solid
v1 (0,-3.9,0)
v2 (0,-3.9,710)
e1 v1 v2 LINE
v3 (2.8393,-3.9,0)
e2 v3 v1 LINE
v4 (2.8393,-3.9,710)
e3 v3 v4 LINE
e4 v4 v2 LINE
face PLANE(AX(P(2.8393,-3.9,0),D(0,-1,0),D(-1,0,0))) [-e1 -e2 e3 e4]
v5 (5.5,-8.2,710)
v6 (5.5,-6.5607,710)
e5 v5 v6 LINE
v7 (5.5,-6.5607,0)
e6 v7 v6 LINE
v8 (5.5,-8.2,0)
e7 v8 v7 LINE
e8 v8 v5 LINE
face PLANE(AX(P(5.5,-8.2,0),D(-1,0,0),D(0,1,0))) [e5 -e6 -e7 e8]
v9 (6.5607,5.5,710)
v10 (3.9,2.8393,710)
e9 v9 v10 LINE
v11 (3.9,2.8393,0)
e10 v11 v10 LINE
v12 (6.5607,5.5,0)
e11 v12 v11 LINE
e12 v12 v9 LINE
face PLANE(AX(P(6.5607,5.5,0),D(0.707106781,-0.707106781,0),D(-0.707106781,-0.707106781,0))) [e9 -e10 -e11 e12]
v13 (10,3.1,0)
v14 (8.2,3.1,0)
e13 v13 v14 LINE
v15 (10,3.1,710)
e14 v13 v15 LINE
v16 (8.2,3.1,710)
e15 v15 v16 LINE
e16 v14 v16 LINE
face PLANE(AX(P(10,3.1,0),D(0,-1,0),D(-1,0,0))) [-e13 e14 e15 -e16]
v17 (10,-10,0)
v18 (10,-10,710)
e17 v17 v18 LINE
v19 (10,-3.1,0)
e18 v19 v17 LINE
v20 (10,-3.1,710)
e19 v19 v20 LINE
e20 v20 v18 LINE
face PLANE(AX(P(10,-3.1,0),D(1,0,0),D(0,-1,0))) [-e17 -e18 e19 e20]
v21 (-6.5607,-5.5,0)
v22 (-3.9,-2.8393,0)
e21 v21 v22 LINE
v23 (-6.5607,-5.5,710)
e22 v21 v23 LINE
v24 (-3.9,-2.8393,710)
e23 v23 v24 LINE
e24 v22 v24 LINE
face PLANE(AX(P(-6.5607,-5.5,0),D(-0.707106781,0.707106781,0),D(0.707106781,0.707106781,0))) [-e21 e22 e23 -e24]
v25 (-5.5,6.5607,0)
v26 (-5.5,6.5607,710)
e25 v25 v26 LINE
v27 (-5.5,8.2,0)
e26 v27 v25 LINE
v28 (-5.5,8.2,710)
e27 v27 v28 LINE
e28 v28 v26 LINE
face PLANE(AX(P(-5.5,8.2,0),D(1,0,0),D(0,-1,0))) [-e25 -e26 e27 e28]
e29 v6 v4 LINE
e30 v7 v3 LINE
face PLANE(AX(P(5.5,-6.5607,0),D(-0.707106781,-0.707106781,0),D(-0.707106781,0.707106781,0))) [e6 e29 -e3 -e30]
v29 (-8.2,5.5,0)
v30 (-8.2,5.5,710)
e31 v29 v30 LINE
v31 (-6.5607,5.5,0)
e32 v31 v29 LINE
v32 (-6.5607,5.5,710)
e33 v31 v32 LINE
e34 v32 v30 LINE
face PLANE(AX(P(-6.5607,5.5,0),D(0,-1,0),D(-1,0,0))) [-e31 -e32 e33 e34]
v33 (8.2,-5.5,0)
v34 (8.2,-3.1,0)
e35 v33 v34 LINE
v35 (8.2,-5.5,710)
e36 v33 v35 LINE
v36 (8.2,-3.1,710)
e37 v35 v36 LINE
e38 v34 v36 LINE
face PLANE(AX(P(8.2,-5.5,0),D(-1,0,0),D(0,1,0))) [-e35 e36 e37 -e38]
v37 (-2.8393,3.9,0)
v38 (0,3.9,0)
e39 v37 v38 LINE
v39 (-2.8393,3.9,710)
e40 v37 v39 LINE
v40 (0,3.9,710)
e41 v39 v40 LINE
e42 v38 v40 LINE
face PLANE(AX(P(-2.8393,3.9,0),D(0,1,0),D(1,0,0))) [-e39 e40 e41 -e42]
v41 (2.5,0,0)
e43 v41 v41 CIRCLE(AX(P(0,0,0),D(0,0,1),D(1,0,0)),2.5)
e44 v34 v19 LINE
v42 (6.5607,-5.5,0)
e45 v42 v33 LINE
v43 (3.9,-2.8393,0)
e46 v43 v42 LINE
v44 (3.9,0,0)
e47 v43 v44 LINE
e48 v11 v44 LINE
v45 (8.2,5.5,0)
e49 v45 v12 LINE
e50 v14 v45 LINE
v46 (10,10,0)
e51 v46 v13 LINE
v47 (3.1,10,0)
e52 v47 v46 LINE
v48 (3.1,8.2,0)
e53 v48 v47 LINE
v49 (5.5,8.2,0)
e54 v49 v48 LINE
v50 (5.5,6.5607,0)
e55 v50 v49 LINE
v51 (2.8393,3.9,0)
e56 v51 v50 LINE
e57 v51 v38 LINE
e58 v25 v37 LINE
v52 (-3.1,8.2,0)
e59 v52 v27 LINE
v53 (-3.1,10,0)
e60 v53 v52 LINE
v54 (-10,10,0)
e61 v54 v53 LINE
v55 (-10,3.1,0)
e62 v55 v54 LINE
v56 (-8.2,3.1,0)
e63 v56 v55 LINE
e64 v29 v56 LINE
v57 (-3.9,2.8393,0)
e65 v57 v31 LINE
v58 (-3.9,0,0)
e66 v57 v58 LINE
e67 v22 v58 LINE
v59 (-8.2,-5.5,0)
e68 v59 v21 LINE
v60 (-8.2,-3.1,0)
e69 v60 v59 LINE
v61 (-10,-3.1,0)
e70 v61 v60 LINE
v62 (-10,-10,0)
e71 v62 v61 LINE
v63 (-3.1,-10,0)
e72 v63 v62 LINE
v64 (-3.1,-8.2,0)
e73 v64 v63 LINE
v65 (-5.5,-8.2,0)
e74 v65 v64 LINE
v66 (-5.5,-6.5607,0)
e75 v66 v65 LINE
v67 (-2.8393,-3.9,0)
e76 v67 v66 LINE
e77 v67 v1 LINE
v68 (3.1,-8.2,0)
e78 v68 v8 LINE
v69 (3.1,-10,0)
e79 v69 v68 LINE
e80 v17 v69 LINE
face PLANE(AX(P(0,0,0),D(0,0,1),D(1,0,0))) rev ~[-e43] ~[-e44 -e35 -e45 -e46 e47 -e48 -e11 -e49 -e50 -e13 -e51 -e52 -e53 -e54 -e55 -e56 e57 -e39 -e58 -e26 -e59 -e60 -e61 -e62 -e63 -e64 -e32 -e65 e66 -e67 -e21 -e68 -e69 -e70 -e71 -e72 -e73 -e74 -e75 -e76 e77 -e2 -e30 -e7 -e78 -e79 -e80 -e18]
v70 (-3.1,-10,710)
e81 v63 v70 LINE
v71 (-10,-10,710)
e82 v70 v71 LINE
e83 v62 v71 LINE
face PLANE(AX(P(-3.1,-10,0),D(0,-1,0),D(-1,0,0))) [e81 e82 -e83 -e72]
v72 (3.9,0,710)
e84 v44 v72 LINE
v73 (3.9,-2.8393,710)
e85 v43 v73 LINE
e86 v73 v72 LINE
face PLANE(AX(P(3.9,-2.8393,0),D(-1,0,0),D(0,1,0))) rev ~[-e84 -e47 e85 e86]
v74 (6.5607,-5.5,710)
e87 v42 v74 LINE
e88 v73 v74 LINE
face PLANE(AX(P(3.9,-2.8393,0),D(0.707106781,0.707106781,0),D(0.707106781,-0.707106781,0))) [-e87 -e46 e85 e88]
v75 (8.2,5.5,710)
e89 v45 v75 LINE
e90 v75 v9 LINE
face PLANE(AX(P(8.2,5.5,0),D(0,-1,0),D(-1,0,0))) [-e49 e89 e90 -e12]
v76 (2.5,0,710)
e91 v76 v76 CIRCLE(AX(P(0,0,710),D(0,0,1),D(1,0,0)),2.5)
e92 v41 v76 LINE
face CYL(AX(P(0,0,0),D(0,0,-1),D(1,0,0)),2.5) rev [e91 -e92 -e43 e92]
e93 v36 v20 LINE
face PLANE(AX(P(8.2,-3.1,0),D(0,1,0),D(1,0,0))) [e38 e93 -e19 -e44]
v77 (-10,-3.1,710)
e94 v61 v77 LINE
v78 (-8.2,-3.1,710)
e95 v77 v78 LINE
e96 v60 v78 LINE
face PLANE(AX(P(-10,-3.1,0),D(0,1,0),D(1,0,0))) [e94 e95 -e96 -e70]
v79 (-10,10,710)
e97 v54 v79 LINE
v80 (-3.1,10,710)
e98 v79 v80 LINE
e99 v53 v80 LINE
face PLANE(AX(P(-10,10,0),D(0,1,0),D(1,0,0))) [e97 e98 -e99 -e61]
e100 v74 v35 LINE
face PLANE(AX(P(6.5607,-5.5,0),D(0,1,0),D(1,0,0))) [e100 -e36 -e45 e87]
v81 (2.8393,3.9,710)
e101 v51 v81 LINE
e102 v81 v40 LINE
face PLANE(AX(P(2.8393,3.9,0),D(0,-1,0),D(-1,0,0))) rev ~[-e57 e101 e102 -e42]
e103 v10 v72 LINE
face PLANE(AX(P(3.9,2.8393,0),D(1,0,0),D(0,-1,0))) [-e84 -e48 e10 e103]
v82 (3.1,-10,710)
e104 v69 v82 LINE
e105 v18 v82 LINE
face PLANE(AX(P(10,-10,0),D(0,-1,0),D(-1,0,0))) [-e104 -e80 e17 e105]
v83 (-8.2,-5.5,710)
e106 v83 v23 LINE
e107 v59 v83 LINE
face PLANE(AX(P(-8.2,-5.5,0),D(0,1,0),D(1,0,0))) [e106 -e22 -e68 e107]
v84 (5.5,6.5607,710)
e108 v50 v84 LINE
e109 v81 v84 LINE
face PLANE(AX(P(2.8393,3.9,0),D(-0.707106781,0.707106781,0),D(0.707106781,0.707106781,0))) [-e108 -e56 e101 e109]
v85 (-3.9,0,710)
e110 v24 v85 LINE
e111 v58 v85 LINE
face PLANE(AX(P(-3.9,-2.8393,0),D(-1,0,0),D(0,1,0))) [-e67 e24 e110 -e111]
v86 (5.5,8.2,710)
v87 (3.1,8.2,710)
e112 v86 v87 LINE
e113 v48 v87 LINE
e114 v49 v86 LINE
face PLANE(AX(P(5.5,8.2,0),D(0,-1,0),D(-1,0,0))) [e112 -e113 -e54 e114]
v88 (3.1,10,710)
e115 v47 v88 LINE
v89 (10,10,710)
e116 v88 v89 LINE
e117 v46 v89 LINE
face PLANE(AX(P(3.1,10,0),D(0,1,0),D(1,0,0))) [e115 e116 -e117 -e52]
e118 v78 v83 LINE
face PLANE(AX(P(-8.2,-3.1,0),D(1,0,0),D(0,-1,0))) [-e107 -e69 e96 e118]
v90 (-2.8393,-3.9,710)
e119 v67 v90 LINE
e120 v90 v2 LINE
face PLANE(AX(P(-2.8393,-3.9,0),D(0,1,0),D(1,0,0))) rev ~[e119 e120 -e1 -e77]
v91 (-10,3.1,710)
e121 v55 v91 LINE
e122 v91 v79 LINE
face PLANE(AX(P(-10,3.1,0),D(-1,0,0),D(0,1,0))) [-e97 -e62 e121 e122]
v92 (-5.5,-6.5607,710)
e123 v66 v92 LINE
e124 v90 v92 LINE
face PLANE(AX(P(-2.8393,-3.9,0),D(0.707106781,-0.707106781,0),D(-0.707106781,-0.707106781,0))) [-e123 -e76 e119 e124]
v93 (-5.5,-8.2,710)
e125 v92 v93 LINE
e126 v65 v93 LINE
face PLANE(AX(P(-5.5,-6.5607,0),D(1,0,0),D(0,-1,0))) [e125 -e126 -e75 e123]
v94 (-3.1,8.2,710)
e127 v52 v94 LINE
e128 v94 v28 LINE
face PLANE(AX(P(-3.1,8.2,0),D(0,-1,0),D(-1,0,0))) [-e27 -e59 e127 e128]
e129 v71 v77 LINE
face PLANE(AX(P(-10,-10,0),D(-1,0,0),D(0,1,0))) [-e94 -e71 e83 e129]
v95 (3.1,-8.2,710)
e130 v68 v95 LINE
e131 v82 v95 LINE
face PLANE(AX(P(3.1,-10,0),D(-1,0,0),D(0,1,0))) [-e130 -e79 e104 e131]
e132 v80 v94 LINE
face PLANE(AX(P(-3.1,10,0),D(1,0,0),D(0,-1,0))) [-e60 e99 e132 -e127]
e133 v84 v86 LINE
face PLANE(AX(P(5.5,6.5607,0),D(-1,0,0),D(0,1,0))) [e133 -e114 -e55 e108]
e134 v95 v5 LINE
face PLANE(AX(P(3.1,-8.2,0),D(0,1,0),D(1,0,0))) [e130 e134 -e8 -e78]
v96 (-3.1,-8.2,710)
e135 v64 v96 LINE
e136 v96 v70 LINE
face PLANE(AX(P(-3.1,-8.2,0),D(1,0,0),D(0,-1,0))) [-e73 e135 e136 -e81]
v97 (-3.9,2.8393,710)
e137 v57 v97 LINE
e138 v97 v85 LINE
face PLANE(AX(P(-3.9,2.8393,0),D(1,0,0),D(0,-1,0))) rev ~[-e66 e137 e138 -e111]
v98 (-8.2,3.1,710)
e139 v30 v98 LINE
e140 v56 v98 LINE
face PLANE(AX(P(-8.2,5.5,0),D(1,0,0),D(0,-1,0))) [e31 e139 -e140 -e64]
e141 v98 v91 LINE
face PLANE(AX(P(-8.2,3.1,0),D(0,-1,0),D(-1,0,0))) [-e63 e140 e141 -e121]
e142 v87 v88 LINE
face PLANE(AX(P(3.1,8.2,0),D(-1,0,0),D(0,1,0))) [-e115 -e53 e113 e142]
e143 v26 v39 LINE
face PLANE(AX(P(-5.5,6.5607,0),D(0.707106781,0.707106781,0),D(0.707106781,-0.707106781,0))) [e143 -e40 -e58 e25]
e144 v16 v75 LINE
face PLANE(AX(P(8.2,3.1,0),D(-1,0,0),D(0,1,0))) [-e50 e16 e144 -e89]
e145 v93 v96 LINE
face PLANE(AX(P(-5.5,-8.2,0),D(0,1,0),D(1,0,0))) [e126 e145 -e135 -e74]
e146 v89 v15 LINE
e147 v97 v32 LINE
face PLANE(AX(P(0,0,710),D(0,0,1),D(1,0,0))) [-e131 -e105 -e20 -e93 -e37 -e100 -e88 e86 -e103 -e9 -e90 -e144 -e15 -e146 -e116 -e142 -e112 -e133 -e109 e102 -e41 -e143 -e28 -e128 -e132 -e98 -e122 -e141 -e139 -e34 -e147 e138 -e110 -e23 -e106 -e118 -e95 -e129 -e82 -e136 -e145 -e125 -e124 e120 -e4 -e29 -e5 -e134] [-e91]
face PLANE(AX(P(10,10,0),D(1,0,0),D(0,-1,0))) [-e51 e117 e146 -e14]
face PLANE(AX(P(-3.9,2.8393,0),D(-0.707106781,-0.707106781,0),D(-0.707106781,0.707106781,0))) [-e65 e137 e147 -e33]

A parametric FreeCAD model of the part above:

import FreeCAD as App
import Part
import Sketcher

doc = App.newDocument("Part")
body = doc.addObject("PartDesign::Body", "Body")

# Sketch on XY plane
sketch1 = body.newObject("Sketcher::SketchObject", "Sketch")
sketch1.AttachmentSupport = (doc.getObject("XY_Plane"), [""])
sketch1.MapMode = "FlatFace"
sketch1.addGeometry([
    Part.LineSegment(App.Vector(-5.5, -6.6, 0), App.Vector(-2.8, -3.9, 0)),  # 0
    Part.LineSegment(App.Vector(-2.8, -3.9, 0), App.Vector(2.8, -3.9, 0)),  # 1
    Part.LineSegment(App.Vector(2.8, -3.9, 0), App.Vector(5.5, -6.6, 0)),  # 2
    Part.LineSegment(App.Vector(5.5, -6.6, 0), App.Vector(5.5, -8.2, 0)),  # 3
    Part.LineSegment(App.Vector(5.5, -8.2, 0), App.Vector(3.1, -8.2, 0)),  # 4
    Part.LineSegment(App.Vector(3.1, -8.2, 0), App.Vector(3.1, -10, 0)),  # 5
    Part.LineSegment(App.Vector(3.1, -10, 0), App.Vector(10, -10, 0)),  # 6
    Part.LineSegment(App.Vector(10, -10, 0), App.Vector(10, -3.1, 0)),  # 7
    Part.LineSegment(App.Vector(10, -3.1, 0), App.Vector(8.2, -3.1, 0)),  # 8
    Part.LineSegment(App.Vector(8.2, -3.1, 0), App.Vector(8.2, -5.5, 0)),  # 9
    Part.LineSegment(App.Vector(8.2, -5.5, 0), App.Vector(6.6, -5.5, 0)),  # 10
    Part.LineSegment(App.Vector(6.6, -5.5, 0), App.Vector(3.9, -2.8, 0)),  # 11
    Part.LineSegment(App.Vector(3.9, -2.8, 0), App.Vector(3.9, 2.8, 0)),  # 12
    Part.LineSegment(App.Vector(3.9, 2.8, 0), App.Vector(6.6, 5.5, 0)),  # 13
    Part.LineSegment(App.Vector(6.6, 5.5, 0), App.Vector(8.2, 5.5, 0)),  # 14
    Part.LineSegment(App.Vector(8.2, 5.5, 0), App.Vector(8.2, 3.1, 0)),  # 15
    Part.LineSegment(App.Vector(8.2, 3.1, 0), App.Vector(10, 3.1, 0)),  # 16
    Part.LineSegment(App.Vector(10, 3.1, 0), App.Vector(10, 10, 0)),  # 17
    Part.LineSegment(App.Vector(10, 10, 0), App.Vector(3.1, 10, 0)),  # 18
    Part.LineSegment(App.Vector(3.1, 10, 0), App.Vector(3.1, 8.2, 0)),  # 19
    Part.LineSegment(App.Vector(3.1, 8.2, 0), App.Vector(5.5, 8.2, 0)),  # 20
    Part.LineSegment(App.Vector(5.5, 8.2, 0), App.Vector(5.5, 6.6, 0)),  # 21
    Part.LineSegment(App.Vector(5.5, 6.6, 0), App.Vector(2.8, 3.9, 0)),  # 22
    Part.LineSegment(App.Vector(2.8, 3.9, 0), App.Vector(-2.8, 3.9, 0)),  # 23
    Part.LineSegment(App.Vector(-2.8, 3.9, 0), App.Vector(-5.5, 6.6, 0)),  # 24
    Part.LineSegment(App.Vector(-5.5, 6.6, 0), App.Vector(-5.5, 8.2, 0)),  # 25
    Part.LineSegment(App.Vector(-5.5, 8.2, 0), App.Vector(-3.1, 8.2, 0)),  # 26
    Part.LineSegment(App.Vector(-3.1, 8.2, 0), App.Vector(-3.1, 10, 0)),  # 27
    Part.LineSegment(App.Vector(-3.1, 10, 0), App.Vector(-10, 10, 0)),  # 28
    Part.LineSegment(App.Vector(-10, 10, 0), App.Vector(-10, 3.1, 0)),  # 29
    Part.LineSegment(App.Vector(-10, 3.1, 0), App.Vector(-8.2, 3.1, 0)),  # 30
    Part.LineSegment(App.Vector(-8.2, 3.1, 0), App.Vector(-8.2, 5.5, 0)),  # 31
    Part.LineSegment(App.Vector(-8.2, 5.5, 0), App.Vector(-6.6, 5.5, 0)),  # 32
    Part.LineSegment(App.Vector(-6.6, 5.5, 0), App.Vector(-3.9, 2.8, 0)),  # 33
    Part.LineSegment(App.Vector(-3.9, 2.8, 0), App.Vector(-3.9, -2.8, 0)),  # 34
    Part.LineSegment(App.Vector(-3.9, -2.8, 0), App.Vector(-6.6, -5.5, 0)),  # 35
    Part.LineSegment(App.Vector(-6.6, -5.5, 0), App.Vector(-8.2, -5.5, 0)),  # 36
    Part.LineSegment(App.Vector(-8.2, -5.5, 0), App.Vector(-8.2, -3.1, 0)),  # 37
    Part.LineSegment(App.Vector(-8.2, -3.1, 0), App.Vector(-10, -3.1, 0)),  # 38
    Part.LineSegment(App.Vector(-10, -3.1, 0), App.Vector(-10, -10, 0)),  # 39
    Part.LineSegment(App.Vector(-10, -10, 0), App.Vector(-3.1, -10, 0)),  # 40
    Part.LineSegment(App.Vector(-3.1, -10, 0), App.Vector(-3.1, -8.2, 0)),  # 41
    Part.LineSegment(App.Vector(-3.1, -8.2, 0), App.Vector(-5.5, -8.2, 0)),  # 42
    Part.LineSegment(App.Vector(-5.5, -8.2, 0), App.Vector(-5.5, -6.6, 0)),  # 43
    Part.Circle(App.Vector(0, 0, 0), App.Vector(0, 0, 1), 2.5),  # 44
], False)
sketch1.addConstraint([
    Sketcher.Constraint("Coincident", 0, 2, 1, 1),
    Sketcher.Constraint("Coincident", 1, 2, 2, 1),
    Sketcher.Constraint("Coincident", 2, 2, 3, 1),
    Sketcher.Constraint("Coincident", 3, 2, 4, 1),
    Sketcher.Constraint("Coincident", 4, 2, 5, 1),
    Sketcher.Constraint("Coincident", 5, 2, 6, 1),
    Sketcher.Constraint("Coincident", 6, 2, 7, 1),
    Sketcher.Constraint("Coincident", 7, 2, 8, 1),
    Sketcher.Constraint("Coincident", 8, 2, 9, 1),
    Sketcher.Constraint("Coincident", 9, 2, 10, 1),
    Sketcher.Constraint("Coincident", 10, 2, 11, 1),
    Sketcher.Constraint("Coincident", 11, 2, 12, 1),
    Sketcher.Constraint("Coincident", 12, 2, 13, 1),
    Sketcher.Constraint("Coincident", 13, 2, 14, 1),
    Sketcher.Constraint("Coincident", 14, 2, 15, 1),
    Sketcher.Constraint("Coincident", 15, 2, 16, 1),
    Sketcher.Constraint("Coincident", 16, 2, 17, 1),
    Sketcher.Constraint("Coincident", 17, 2, 18, 1),
    Sketcher.Constraint("Coincident", 18, 2, 19, 1),
    Sketcher.Constraint("Coincident", 19, 2, 20, 1),
    Sketcher.Constraint("Coincident", 20, 2, 21, 1),
    Sketcher.Constraint("Coincident", 21, 2, 22, 1),
    Sketcher.Constraint("Coincident", 22, 2, 23, 1),
    Sketcher.Constraint("Coincident", 23, 2, 24, 1),
    Sketcher.Constraint("Coincident", 24, 2, 25, 1),
    Sketcher.Constraint("Coincident", 25, 2, 26, 1),
    Sketcher.Constraint("Coincident", 26, 2, 27, 1),
    Sketcher.Constraint("Coincident", 27, 2, 28, 1),
    Sketcher.Constraint("Coincident", 28, 2, 29, 1),
    Sketcher.Constraint("Coincident", 29, 2, 30, 1),
    Sketcher.Constraint("Coincident", 30, 2, 31, 1),
    Sketcher.Constraint("Coincident", 31, 2, 32, 1),
    Sketcher.Constraint("Coincident", 32, 2, 33, 1),
    Sketcher.Constraint("Coincident", 33, 2, 34, 1),
    Sketcher.Constraint("Coincident", 34, 2, 35, 1),
    Sketcher.Constraint("Coincident", 35, 2, 36, 1),
    Sketcher.Constraint("Coincident", 36, 2, 37, 1),
    Sketcher.Constraint("Coincident", 37, 2, 38, 1),
    Sketcher.Constraint("Coincident", 38, 2, 39, 1),
    Sketcher.Constraint("Coincident", 39, 2, 40, 1),
    Sketcher.Constraint("Coincident", 40, 2, 41, 1),
    Sketcher.Constraint("Coincident", 41, 2, 42, 1),
    Sketcher.Constraint("Coincident", 42, 2, 43, 1),
    Sketcher.Constraint("Coincident", 43, 2, 0, 1),
    Sketcher.Constraint("Horizontal", 1),
    Sketcher.Constraint("Vertical", 3),
    Sketcher.Constraint("Horizontal", 4),
    Sketcher.Constraint("Vertical", 5),
    Sketcher.Constraint("Horizontal", 6),
    Sketcher.Constraint("Vertical", 7),
    Sketcher.Constraint("Horizontal", 8),
    Sketcher.Constraint("Vertical", 9),
    Sketcher.Constraint("Horizontal", 10),
    Sketcher.Constraint("Vertical", 12),
    Sketcher.Constraint("Horizontal", 14),
    Sketcher.Constraint("Vertical", 15),
    Sketcher.Constraint("Horizontal", 16),
    Sketcher.Constraint("Vertical", 17),
    Sketcher.Constraint("Horizontal", 18),
    Sketcher.Constraint("Vertical", 19),
    Sketcher.Constraint("Horizontal", 20),
    Sketcher.Constraint("Vertical", 21),
    Sketcher.Constraint("Horizontal", 23),
    Sketcher.Constraint("Vertical", 25),
    Sketcher.Constraint("Horizontal", 26),
    Sketcher.Constraint("Vertical", 27),
    Sketcher.Constraint("Horizontal", 28),
    Sketcher.Constraint("Vertical", 29),
    Sketcher.Constraint("Horizontal", 30),
    Sketcher.Constraint("Vertical", 31),
    Sketcher.Constraint("Horizontal", 32),
    Sketcher.Constraint("Vertical", 34),
    Sketcher.Constraint("Horizontal", 36),
    Sketcher.Constraint("Vertical", 37),
    Sketcher.Constraint("Horizontal", 38),
    Sketcher.Constraint("Vertical", 39),
    Sketcher.Constraint("Horizontal", 40),
    Sketcher.Constraint("Vertical", 41),
    Sketcher.Constraint("Horizontal", 42),
    Sketcher.Constraint("Vertical", 43),
    Sketcher.Constraint("Coincident", 44, 3, -1, 1),
    Sketcher.Constraint("Symmetric", 0, 2, 22, 2, -1, 1),
    Sketcher.Constraint("Symmetric", 2, 2, 24, 2, -1, 1),
    Sketcher.Constraint("Symmetric", 4, 2, 26, 2, -1, 1),
    Sketcher.Constraint("Symmetric", 6, 2, 28, 2, -1, 1),
    Sketcher.Constraint("Symmetric", 8, 2, 30, 2, -1, 1),
    Sketcher.Constraint("Symmetric", 10, 2, 32, 2, -1, 1),
    Sketcher.Constraint("Symmetric", 11, 2, 33, 2, -1, 1),
    Sketcher.Constraint("Symmetric", 13, 2, 35, 2, -1, 1),
    Sketcher.Constraint("Symmetric", 15, 2, 37, 2, -1, 1),
    Sketcher.Constraint("Symmetric", 17, 2, 39, 2, -1, 1),
    Sketcher.Constraint("Symmetric", 19, 2, 41, 2, -1, 1),
    Sketcher.Constraint("Symmetric", 21, 2, 43, 2, -1, 1),
    Sketcher.Constraint("Symmetric", 21, 2, 24, 2, -2),
    Sketcher.Constraint("Symmetric", 19, 2, 26, 2, -2),
    Sketcher.Constraint("Symmetric", 17, 2, 28, 2, -2),
    Sketcher.Constraint("Symmetric", 15, 2, 30, 2, -2),
    Sketcher.Constraint("Symmetric", 13, 2, 32, 2, -2),
    Sketcher.Constraint("Perpendicular", 0, 2),
    Sketcher.Constraint("Parallel", 2, 11),
    Sketcher.Constraint("Perpendicular", 11, 13),
    Sketcher.Constraint("Perpendicular", 22, 24),
    Sketcher.Constraint("Perpendicular", 33, 35),
    Sketcher.Constraint("Horizontal", 12, 2, 33, 2),
    Sketcher.Constraint("Equal", 36, 3),
    Sketcher.Constraint("Equal", 38, 5),
    Sketcher.Constraint("Equal", 40, 7),
    Sketcher.Constraint("Equal", 42, 9),
    Sketcher.Constraint("Equal", 23, 12),
    Sketcher.Constraint("Equal", 2, 11),
    Sketcher.Constraint("Diameter", 44, 5.0),
    Sketcher.Constraint("DistanceX", 8, 2, 8, 1, 1.8),
    Sketcher.Constraint("DistanceY", 5, 2, -1, 1, 10.0),
    Sketcher.Constraint("DistanceX", -1, 1, 2, 2, 5.5),
    Sketcher.Constraint("DistanceX", -1, 1, 4, 2, 3.1),
    Sketcher.Constraint("DistanceY", 5, 2, 1, 2, 6.1),
    Sketcher.Constraint("DistanceX", 1, 1, 1, 2, 5.6786),
])
pad1 = body.newObject("PartDesign::Pad", "Pad")
pad1.Profile = sketch1
pad1.Length = 710

doc.recompute()
